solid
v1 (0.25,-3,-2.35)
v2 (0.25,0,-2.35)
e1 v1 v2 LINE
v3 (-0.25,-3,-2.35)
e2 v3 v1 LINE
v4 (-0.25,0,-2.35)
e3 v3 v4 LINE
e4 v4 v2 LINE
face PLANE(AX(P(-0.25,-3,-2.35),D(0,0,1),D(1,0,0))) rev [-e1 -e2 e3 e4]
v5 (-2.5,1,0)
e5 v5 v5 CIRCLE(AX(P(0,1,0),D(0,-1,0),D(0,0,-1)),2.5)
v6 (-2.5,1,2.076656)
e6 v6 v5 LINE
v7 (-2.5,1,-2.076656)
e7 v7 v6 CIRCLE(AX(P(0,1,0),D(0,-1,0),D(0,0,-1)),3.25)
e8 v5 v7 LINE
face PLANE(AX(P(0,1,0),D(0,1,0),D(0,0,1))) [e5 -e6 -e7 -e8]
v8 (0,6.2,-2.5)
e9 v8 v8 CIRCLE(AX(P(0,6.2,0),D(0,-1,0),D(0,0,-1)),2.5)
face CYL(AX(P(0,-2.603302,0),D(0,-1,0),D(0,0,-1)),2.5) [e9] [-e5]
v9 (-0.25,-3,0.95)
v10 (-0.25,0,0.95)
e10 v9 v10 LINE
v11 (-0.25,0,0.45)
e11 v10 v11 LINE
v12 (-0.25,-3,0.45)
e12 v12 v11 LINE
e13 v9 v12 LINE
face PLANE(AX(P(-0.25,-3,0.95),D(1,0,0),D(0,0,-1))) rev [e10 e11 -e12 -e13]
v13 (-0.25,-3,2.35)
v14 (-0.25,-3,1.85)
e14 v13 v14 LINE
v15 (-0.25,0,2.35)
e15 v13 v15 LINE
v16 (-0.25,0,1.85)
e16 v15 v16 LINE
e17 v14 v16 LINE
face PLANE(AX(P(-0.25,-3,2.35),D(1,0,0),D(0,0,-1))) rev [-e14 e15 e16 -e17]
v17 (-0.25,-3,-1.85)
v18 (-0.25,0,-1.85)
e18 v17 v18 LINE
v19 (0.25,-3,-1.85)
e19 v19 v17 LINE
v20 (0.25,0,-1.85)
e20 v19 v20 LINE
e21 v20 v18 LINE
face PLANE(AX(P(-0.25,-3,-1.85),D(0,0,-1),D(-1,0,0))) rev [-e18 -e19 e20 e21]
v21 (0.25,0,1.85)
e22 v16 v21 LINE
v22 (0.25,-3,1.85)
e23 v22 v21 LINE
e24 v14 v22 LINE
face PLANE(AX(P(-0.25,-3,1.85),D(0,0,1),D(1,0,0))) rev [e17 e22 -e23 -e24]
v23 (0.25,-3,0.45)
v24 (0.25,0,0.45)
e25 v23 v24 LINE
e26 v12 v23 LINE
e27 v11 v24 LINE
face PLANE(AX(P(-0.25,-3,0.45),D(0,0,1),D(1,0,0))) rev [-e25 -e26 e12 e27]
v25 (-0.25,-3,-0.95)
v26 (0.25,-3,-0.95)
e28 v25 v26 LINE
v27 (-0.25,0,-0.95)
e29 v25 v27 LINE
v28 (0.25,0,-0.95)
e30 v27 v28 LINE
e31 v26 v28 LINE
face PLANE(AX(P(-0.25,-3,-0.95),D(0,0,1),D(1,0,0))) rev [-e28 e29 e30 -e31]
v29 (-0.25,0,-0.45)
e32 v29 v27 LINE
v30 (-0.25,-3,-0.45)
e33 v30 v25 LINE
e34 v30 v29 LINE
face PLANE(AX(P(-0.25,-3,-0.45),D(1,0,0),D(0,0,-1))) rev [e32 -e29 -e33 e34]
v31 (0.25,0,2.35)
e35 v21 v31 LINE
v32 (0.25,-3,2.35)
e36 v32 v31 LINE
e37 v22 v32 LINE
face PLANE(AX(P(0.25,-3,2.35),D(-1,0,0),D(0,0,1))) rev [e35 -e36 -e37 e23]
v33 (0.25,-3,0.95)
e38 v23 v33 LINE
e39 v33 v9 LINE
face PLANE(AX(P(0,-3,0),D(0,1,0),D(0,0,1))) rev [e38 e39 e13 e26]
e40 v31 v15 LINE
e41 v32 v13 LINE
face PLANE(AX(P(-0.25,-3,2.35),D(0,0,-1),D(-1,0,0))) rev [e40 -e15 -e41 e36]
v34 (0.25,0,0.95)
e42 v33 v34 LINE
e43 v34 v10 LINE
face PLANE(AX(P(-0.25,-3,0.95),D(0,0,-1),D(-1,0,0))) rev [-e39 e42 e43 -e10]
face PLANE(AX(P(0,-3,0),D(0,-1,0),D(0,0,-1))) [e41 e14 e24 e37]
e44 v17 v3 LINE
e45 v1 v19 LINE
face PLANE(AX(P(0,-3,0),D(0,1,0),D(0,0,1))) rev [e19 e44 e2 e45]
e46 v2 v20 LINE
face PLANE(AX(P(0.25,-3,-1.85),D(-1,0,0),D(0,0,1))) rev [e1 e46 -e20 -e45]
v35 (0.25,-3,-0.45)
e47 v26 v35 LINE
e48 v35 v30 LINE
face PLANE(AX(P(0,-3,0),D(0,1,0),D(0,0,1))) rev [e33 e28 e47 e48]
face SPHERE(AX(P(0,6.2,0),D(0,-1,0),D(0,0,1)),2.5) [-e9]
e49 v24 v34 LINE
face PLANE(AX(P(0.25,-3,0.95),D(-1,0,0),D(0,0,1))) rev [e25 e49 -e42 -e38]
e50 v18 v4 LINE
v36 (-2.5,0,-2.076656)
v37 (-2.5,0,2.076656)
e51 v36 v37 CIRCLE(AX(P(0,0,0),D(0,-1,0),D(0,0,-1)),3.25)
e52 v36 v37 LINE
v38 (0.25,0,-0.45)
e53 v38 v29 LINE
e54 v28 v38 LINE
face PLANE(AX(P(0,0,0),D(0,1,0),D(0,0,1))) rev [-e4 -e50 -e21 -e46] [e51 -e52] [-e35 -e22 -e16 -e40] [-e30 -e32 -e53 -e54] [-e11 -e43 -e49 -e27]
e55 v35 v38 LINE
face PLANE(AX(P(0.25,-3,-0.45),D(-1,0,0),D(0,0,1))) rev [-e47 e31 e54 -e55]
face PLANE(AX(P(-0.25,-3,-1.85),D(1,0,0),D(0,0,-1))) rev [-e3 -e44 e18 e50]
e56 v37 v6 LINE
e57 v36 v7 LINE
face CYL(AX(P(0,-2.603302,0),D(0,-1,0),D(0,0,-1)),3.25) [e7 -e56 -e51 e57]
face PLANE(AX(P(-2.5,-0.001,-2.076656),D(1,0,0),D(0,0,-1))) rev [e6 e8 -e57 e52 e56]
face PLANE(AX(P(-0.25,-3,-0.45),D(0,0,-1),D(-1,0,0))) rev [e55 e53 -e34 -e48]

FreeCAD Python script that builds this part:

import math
import FreeCAD as App
import Part
import Sketcher

V = App.Vector
Q = App.Units.Quantity

doc = App.newDocument("Part")
params = doc.addObject("Spreadsheet::Sheet", "Params")
for row, (alias, value) in enumerate([
    ("sketch1_radius", "2.5 mm"),
    ("sketch1_width", "1 mm"),
    ("sketch1_width2", "5.2 mm"),
    ("sketch1_height", "0.75 mm"),
    ("revolution_angle", "360 deg"),
    ("sketch2_radius", "3.25 mm"),
    ("sketch3_width", "0.5 mm"),
    ("pad1_length", "3 mm"),
], start=1):
    params.set(f"A{row}", alias)
    params.set(f"B{row}", "=" + value)
    params.setAlias(f"B{row}", alias)

body = doc.addObject("PartDesign::Body", "Body")

# Sketch on YZ plane
sketch1 = body.newObject("Sketcher::SketchObject", "Sketch")
sketch1.AttachmentSupport = (doc.getObject("YZ_Plane"), [""])
sketch1.MapMode = "FlatFace"
sketch1.addGeometry([
    Part.ArcOfCircle(Part.Circle(V(6.2, 0, 0), V(0, 0, 1), 2.5), math.radians(0), math.radians(90)),  # 0
    Part.LineSegment(V(6.2, 2.5, 0), V(1, 2.5, 0)),  # 1
    Part.LineSegment(V(1, 2.5, 0), V(1, 3.25, 0)),  # 2
    Part.LineSegment(V(1, 3.25, 0), V(0, 3.25, 0)),  # 3
    Part.LineSegment(V(0, 3.25, 0), V(0, 0, 0)),  # 4
    Part.LineSegment(V(0, 0, 0), V(8.7, 0, 0)),  # 5
], False)
sketch1.addConstraint([
    Sketcher.Constraint("Tangent", 0, 2, 1, 1),
    Sketcher.Constraint("Coincident", 1, 2, 2, 1),
    Sketcher.Constraint("Coincident", 2, 2, 3, 1),
    Sketcher.Constraint("Coincident", 3, 2, 4, 1),
    Sketcher.Constraint("Coincident", 4, 2, 5, 1),
    Sketcher.Constraint("Coincident", 5, 2, 0, 1),
    Sketcher.Constraint("Horizontal", 1),
    Sketcher.Constraint("Vertical", 2),
    Sketcher.Constraint("Horizontal", 3),
    Sketcher.Constraint("Vertical", 4),
    Sketcher.Constraint("Horizontal", 5),
    Sketcher.Constraint("Coincident", 4, 2, -1, 1),
    Sketcher.Constraint("PointOnObject", 0, 3, -1),
    Sketcher.Constraint("Radius", 0, Q("2.5 mm")),
    Sketcher.Constraint("DistanceX", 3, 2, 3, 1, Q("1 mm")),
    Sketcher.Constraint("DistanceX", 1, 2, 1, 1, Q("5.2 mm")),
    Sketcher.Constraint("DistanceY", 2, 1, 2, 2, Q("0.75 mm")),
])
sketch1.setExpression("Constraints[13]", "Params.sketch1_radius")
sketch1.setExpression("Constraints[14]", "Params.sketch1_width")
sketch1.setExpression("Constraints[15]", "Params.sketch1_width2")
sketch1.setExpression("Constraints[16]", "Params.sketch1_height")
revolution = body.newObject("PartDesign::Revolution", "Revolution")
revolution.Profile = sketch1
revolution.ReferenceAxis = (sketch1, ["H_Axis"])
revolution.setExpression("Angle", "Params.revolution_angle")

# Sketch on XZ plane
sketch2 = body.newObject("Sketcher::SketchObject", "Sketch001")
sketch2.AttachmentSupport = (doc.getObject("XZ_Plane"), [""])
sketch2.MapMode = "FlatFace"
sketch2.AttachmentOffset = App.Placement(V(0, 0, -1), App.Rotation())
sketch2.addGeometry([
    Part.LineSegment(V(-2.5, 2.076656, 0), V(-2.5, -2.076656, 0)),
    Part.ArcOfCircle(Part.Circle(V(0, 0, 0), V(0, 0, 1), 3.25), math.radians(140.284863), math.radians(219.715137)),
], False)
sketch2.addConstraint([
    Sketcher.Constraint("Coincident", 0, 1, 1, 1),
    Sketcher.Constraint("Coincident", 1, 2, 0, 2),
    Sketcher.Constraint("Vertical", 0),
    Sketcher.Constraint("Coincident", 1, 3, -1, 1),
    Sketcher.Constraint("Radius", 1, Q("3.25 mm")),
    Sketcher.Constraint("DistanceX", 0, 1, -1, 1, Q("2.5 mm")),
])
sketch2.setExpression("Constraints[4]", "Params.sketch2_radius")
pocket1 = body.newObject("PartDesign::Pocket", "Pocket")
pocket1.Profile = sketch2
pocket1.Type = "UpToFirst"
pocket1.Reversed = True

# Sketch on XZ plane
sketch3 = body.newObject("Sketcher::SketchObject", "Sketch002")
sketch3.AttachmentSupport = (doc.getObject("XZ_Plane"), [""])
sketch3.MapMode = "FlatFace"
sketch3.addGeometry([
    Part.LineSegment(V(-0.25, 0.95, 0), V(-0.25, 0.45, 0)),  # 0
    Part.LineSegment(V(-0.25, 0.45, 0), V(0.25, 0.45, 0)),  # 1
    Part.LineSegment(V(0.25, 0.45, 0), V(0.25, 0.95, 0)),  # 2
    Part.LineSegment(V(0.25, 0.95, 0), V(-0.25, 0.95, 0)),  # 3
    Part.LineSegment(V(-0.25, 2.35, 0), V(-0.25, 1.85, 0)),  # 4
    Part.LineSegment(V(-0.25, 1.85, 0), V(0.25, 1.85, 0)),  # 5
    Part.LineSegment(V(0.25, 1.85, 0), V(0.25, 2.35, 0)),  # 6
    Part.LineSegment(V(0.25, 2.35, 0), V(-0.25, 2.35, 0)),  # 7
    Part.LineSegment(V(-0.25, -0.45, 0), V(-0.25, -0.95, 0)),  # 8
    Part.LineSegment(V(-0.25, -0.95, 0), V(0.25, -0.95, 0)),  # 9
    Part.LineSegment(V(0.25, -0.95, 0), V(0.25, -0.45, 0)),  # 10
    Part.LineSegment(V(0.25, -0.45, 0), V(-0.25, -0.45, 0)),  # 11
    Part.LineSegment(V(-0.25, -1.85, 0), V(-0.25, -2.35, 0)),  # 12
    Part.LineSegment(V(-0.25, -2.35, 0), V(0.25, -2.35, 0)),  # 13
    Part.LineSegment(V(0.25, -2.35, 0), V(0.25, -1.85, 0)),  # 14
    Part.LineSegment(V(0.25, -1.85, 0), V(-0.25, -1.85, 0)),  # 15
], False)
sketch3.addConstraint([
    Sketcher.Constraint("Coincident", 0, 2, 1, 1),
    Sketcher.Constraint("Coincident", 1, 2, 2, 1),
    Sketcher.Constraint("Coincident", 2, 2, 3, 1),
    Sketcher.Constraint("Coincident", 3, 2, 0, 1),
    Sketcher.Constraint("Coincident", 4, 2, 5, 1),
    Sketcher.Constraint("Coincident", 5, 2, 6, 1),
    Sketcher.Constraint("Coincident", 6, 2, 7, 1),
    Sketcher.Constraint("Coincident", 7, 2, 4, 1),
    Sketcher.Constraint("Coincident", 8, 2, 9, 1),
    Sketcher.Constraint("Coincident", 9, 2, 10, 1),
    Sketcher.Constraint("Coincident", 10, 2, 11, 1),
    Sketcher.Constraint("Coincident", 11, 2, 8, 1),
    Sketcher.Constraint("Coincident", 12, 2, 13, 1),
    Sketcher.Constraint("Coincident", 13, 2, 14, 1),
    Sketcher.Constraint("Coincident", 14, 2, 15, 1),
    Sketcher.Constraint("Coincident", 15, 2, 12, 1),
    Sketcher.Constraint("Vertical", 0),
    Sketcher.Constraint("Horizontal", 1),
    Sketcher.Constraint("Vertical", 2),
    Sketcher.Constraint("Horizontal", 3),
    Sketcher.Constraint("Vertical", 4),
    Sketcher.Constraint("Horizontal", 5),
    Sketcher.Constraint("Vertical", 6),
    Sketcher.Constraint("Horizontal", 7),
    Sketcher.Constraint("Vertical", 8),
    Sketcher.Constraint("Horizontal", 9),
    Sketcher.Constraint("Vertical", 10),
    Sketcher.Constraint("Horizontal", 11),
    Sketcher.Constraint("Vertical", 12),
    Sketcher.Constraint("Horizontal", 13),
    Sketcher.Constraint("Vertical", 14),
    Sketcher.Constraint("Horizontal", 15),
    Sketcher.Constraint("Symmetric", 2, 2, 8, 2, -1, 1),
    Sketcher.Constraint("Symmetric", 0, 2, 10, 2, -1, 1),
    Sketcher.Constraint("Symmetric", 6, 2, 12, 2, -1, 1),
    Sketcher.Constraint("Symmetric", 4, 2, 14, 2, -1, 1),
    Sketcher.Constraint("Vertical", 3, 2, 4, 2),
    Sketcher.Constraint("Vertical", 2, 2, 5, 2),
    Sketcher.Constraint("Vertical", 7, 2, 8, 2),
    Sketcher.Constraint("Equal", 15, 0),
    Sketcher.Constraint("Equal", 2, 4),
    Sketcher.Constraint("DistanceX", 1, 1, 1, 2, Q("0.5 mm")),
    Sketcher.Constraint("DistanceY", 3, 2, 4, 2, Q("0.9 mm")),
    Sketcher.Constraint("DistanceY", 8, 2, 0, 2, Q("1.4 mm")),
])
sketch3.setExpression("Constraints[41]", "Params.sketch3_width")
pad1 = body.newObject("PartDesign::Pad", "Pad")
pad1.Profile = sketch3
pad1.setExpression("Length", "Params.pad1_length")

doc.recompute()
